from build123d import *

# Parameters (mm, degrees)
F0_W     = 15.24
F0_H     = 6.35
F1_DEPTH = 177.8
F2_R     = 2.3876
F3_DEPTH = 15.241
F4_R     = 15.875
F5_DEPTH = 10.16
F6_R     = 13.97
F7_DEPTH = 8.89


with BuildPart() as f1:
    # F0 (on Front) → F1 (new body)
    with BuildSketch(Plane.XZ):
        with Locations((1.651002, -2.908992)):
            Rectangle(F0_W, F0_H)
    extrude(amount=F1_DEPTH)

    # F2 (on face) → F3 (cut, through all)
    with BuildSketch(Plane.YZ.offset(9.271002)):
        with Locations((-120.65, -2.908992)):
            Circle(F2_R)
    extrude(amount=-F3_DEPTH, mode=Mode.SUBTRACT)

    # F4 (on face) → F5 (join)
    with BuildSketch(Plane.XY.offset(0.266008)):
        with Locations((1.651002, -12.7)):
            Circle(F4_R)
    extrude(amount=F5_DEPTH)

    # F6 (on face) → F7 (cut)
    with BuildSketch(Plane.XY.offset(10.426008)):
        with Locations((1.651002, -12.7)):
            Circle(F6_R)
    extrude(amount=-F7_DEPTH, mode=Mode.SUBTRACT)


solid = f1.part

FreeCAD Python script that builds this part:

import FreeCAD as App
import Part
import Sketcher
Q = App.Units.Quantity


def add_polygon(sketch, points):
    """Adds a closed chain of lines whose ends are joined by coincident constraints."""
    first, n = sketch.GeometryCount, len(points)
    for a, b in zip(points, points[1:] + points[:1]):
        sketch.addGeometry(Part.LineSegment(App.Vector(*a, 0), App.Vector(*b, 0)), False)
    for i in range(n):
        sketch.addConstraint(Sketcher.Constraint("Coincident", first + i, 2, first + (i + 1) % n, 1))

doc = App.newDocument("Part")
body = doc.addObject("PartDesign::Body", "Body")

# Sketch on XZ plane
sketch1 = body.newObject("Sketcher::SketchObject", "Sketch")
sketch1.AttachmentSupport = (doc.getObject("XZ_Plane"), [""])
sketch1.MapMode = "FlatFace"
add_polygon(sketch1, [(-6, 0), (-6, -6), (9, -6), (9, 0)])  # lines 0-3
sketch1.addConstraint([
    Sketcher.Constraint("Vertical", 0),
    Sketcher.Constraint("Horizontal", 1),
    Sketcher.Constraint("Vertical", 2),
    Sketcher.Constraint("Horizontal", 3),
    Sketcher.Constraint("DistanceX", 1, 1, 1, 2, Q("0.6 in")),
    Sketcher.Constraint("DistanceY", 0, 2, 0, 1, Q("0.25 in")),
    Sketcher.Constraint("DistanceX", 0, 2, -1, 1, Q("0.2349999 in")),
    Sketcher.Constraint("DistanceY", 0, 2, -1, 1, Q("6.083992 mm")),
])
pad1 = body.newObject("PartDesign::Pad", "Pad")
pad1.Profile = sketch1
pad1.Length = Q("7 in")

# Sketch on YZ plane
sketch2 = body.newObject("Sketcher::SketchObject", "Sketch001")
sketch2.AttachmentSupport = (doc.getObject("YZ_Plane"), [""])
sketch2.MapMode = "FlatFace"
sketch2.AttachmentOffset = App.Placement(App.Vector(0, 0, 0.3650001 * 25.4), App.Rotation())
sketch2.addGeometry(Part.Circle(App.Vector(-120.7, -2.9, 0), App.Vector(0, 0, 1), 2.4), False)
sketch2.addConstraint([
    Sketcher.Constraint("Diameter", 0, Q("0.188 in")),
    Sketcher.Constraint("DistanceX", 0, 3, -1, 1, Q("4.75 in")),
    Sketcher.Constraint("DistanceY", 0, 3, -1, 1, Q("2.908992 mm")),
])
pocket1 = body.newObject("PartDesign::Pocket", "Pocket")
pocket1.Profile = sketch2
pocket1.Type = "ThroughAll"

# Sketch on XY plane
sketch3 = body.newObject("Sketcher::SketchObject", "Sketch002")
sketch3.AttachmentSupport = (doc.getObject("XY_Plane"), [""])
sketch3.MapMode = "FlatFace"
sketch3.AttachmentOffset = App.Placement(App.Vector(0, 0, 0.266008), App.Rotation())
sketch3.addGeometry(Part.Circle(App.Vector(2, -13, 0), App.Vector(0, 0, 1), 16), False)
sketch3.addConstraint([
    Sketcher.Constraint("Diameter", 0, Q("1.25 in")),
    Sketcher.Constraint("DistanceY", 0, 3, -1, 1, Q("0.5 in")),
    Sketcher.Constraint("DistanceX", -1, 1, 0, 3, Q("0.0650001 in")),
])
pad2 = body.newObject("PartDesign::Pad", "Pad001")
pad2.Profile = sketch3
pad2.Length = Q("0.4 in")

# Sketch on XY plane
sketch4 = body.newObject("Sketcher::SketchObject", "Sketch003")
sketch4.AttachmentSupport = (doc.getObject("XY_Plane"), [""])
sketch4.MapMode = "FlatFace"
sketch4.AttachmentOffset = App.Placement(App.Vector(0, 0, 10.426008), App.Rotation())
sketch4.addGeometry(Part.Circle(App.Vector(2, -13, 0), App.Vector(0, 0, 1), 14), False)
sketch4.addConstraint([
    Sketcher.Constraint("Diameter", 0, Q("1.1 in")),
    Sketcher.Constraint("DistanceY", 0, 3, -1, 1, Q("0.5 in")),
    Sketcher.Constraint("DistanceX", -1, 1, 0, 3, Q("0.0650001 in")),
])
pocket2 = body.newObject("PartDesign::Pocket", "Pocket001")
pocket2.Profile = sketch4
pocket2.Length = Q("0.35 in")

doc.recompute()
